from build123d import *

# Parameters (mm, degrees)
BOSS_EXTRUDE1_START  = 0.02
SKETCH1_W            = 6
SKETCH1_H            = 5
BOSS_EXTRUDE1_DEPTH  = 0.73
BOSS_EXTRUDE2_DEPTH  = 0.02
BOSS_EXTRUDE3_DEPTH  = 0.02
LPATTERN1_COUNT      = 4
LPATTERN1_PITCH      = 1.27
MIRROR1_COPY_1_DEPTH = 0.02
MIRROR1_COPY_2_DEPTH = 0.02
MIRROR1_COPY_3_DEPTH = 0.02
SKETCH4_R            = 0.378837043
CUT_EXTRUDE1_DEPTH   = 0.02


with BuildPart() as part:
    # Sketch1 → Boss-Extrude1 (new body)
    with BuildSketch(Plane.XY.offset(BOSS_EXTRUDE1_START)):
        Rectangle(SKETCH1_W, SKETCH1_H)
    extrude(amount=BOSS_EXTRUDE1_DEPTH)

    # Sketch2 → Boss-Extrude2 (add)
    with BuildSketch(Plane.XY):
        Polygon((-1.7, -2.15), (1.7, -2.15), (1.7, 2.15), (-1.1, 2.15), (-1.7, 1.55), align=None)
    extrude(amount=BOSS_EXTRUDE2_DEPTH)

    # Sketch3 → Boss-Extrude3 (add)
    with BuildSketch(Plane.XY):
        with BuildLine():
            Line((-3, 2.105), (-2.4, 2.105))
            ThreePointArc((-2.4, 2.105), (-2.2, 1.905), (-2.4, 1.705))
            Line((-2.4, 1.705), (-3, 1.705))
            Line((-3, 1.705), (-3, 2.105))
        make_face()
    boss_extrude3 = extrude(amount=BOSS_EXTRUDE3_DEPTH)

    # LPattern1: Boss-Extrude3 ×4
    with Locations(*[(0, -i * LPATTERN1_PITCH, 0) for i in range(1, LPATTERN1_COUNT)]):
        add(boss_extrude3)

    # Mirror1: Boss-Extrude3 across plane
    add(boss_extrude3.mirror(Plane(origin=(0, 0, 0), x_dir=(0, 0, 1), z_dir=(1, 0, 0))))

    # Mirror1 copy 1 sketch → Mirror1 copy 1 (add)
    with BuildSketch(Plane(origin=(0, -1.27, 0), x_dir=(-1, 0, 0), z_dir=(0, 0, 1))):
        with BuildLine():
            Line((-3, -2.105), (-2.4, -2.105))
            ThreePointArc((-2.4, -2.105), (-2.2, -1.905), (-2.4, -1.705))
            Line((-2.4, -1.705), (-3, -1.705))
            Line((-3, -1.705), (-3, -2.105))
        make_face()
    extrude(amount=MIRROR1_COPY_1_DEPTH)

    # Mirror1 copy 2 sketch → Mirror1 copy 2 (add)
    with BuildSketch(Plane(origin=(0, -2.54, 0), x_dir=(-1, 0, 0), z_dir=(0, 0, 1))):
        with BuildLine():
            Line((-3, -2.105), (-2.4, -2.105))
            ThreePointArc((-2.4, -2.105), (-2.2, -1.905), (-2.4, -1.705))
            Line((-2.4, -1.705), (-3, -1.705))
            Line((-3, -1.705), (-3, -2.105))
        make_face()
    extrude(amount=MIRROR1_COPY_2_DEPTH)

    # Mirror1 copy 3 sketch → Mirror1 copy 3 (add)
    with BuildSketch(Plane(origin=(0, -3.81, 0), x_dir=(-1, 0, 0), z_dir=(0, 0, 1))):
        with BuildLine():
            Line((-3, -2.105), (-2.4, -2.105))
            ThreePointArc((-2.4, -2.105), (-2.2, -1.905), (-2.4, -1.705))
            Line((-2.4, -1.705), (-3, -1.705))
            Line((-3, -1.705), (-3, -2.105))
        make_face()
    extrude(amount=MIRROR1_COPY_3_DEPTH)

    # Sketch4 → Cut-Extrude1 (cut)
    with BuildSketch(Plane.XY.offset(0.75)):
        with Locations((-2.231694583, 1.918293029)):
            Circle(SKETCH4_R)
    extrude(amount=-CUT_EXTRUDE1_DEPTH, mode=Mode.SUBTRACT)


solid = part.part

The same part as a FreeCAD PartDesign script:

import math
import FreeCAD as App
import Part
import Sketcher
from FreeCAD import Vector
Q = App.Units.Quantity

doc = App.newDocument("Part")
params = doc.addObject("Spreadsheet::Sheet", "Params")
for row, (alias, value) in enumerate([
    ("sketch1_width", "6 mm"),
    ("sketch1_height", "5 mm"),
    ("pad1_length", "0.73 mm"),
    ("sketch2_width", "3.4 mm"),
    ("sketch2_width2", "2.8 mm"),
    ("sketch2_height", "4.3 mm"),
    ("pad2_length", "0.02 mm"),
    ("sketch3_radius", "0.2 mm"),
    ("sketch3_width", "0.6 mm"),
    ("pad3_length", "0.02 mm"),
    ("linearpattern_pitch", "1.27 mm"),
    ("sketch4_radius", "0.2 mm"),
    ("sketch4_width", "0.6 mm"),
    ("pad4_length", "0.02 mm"),
    ("sketch5_radius", "0.2 mm"),
    ("sketch5_width", "0.6 mm"),
    ("pad5_length", "0.02 mm"),
    ("sketch6_radius", "0.2 mm"),
    ("sketch6_width", "0.6 mm"),
    ("pad6_length", "0.02 mm"),
    ("pocket1_length", "0.02 mm"),
], start=1):
    params.set(f"A{row}", alias)
    params.set(f"B{row}", "=" + value)
    params.setAlias(f"B{row}", alias)

body = doc.addObject("PartDesign::Body", "Body")

# Sketch on XY plane
sketch1 = body.newObject("Sketcher::SketchObject", "Sketch")
sketch1.AttachmentSupport = (doc.getObject("XY_Plane"), [""])
sketch1.MapMode = "FlatFace"
sketch1.AttachmentOffset = App.Placement(Vector(0, 0, 0.02), App.Rotation())
sketch1.addGeometry([
    Part.LineSegment(Vector(-3, 2, 0), Vector(-3, -2, 0)),
    Part.LineSegment(Vector(-3, -2, 0), Vector(3, -2, 0)),
    Part.LineSegment(Vector(3, -2, 0), Vector(3, 2, 0)),
    Part.LineSegment(Vector(3, 2, 0), Vector(-3, 2, 0)),
], False)
sketch1.addConstraint([
    Sketcher.Constraint("Coincident", 0, 2, 1, 1),
    Sketcher.Constraint("Coincident", 1, 2, 2, 1),
    Sketcher.Constraint("Coincident", 2, 2, 3, 1),
    Sketcher.Constraint("Coincident", 3, 2, 0, 1),
    Sketcher.Constraint("Vertical", 0),
    Sketcher.Constraint("Horizontal", 1),
    Sketcher.Constraint("Vertical", 2),
    Sketcher.Constraint("Horizontal", 3),
    Sketcher.Constraint("Symmetric", 0, 2, 2, 2, -1, 1),
    Sketcher.Constraint("DistanceX", 1, 1, 1, 2, Q("6 mm")),
    Sketcher.Constraint("DistanceY", 0, 2, 0, 1, Q("5 mm")),
])
sketch1.setExpression("Constraints[9]", "Params.sketch1_width")
sketch1.setExpression("Constraints[10]", "Params.sketch1_height")
pad1 = body.newObject("PartDesign::Pad", "Pad")
pad1.Profile = sketch1
pad1.setExpression("Length", "Params.pad1_length")

# Sketch on XY plane
sketch2 = body.newObject("Sketcher::SketchObject", "Sketch001")
sketch2.AttachmentSupport = (doc.getObject("XY_Plane"), [""])
sketch2.MapMode = "FlatFace"
sketch2.addGeometry([
    Part.LineSegment(Vector(-1.7, -2.1, 0), Vector(1.7, -2.1, 0)),  # 0
    Part.LineSegment(Vector(1.7, -2.1, 0), Vector(1.7, 2.1, 0)),  # 1
    Part.LineSegment(Vector(1.7, 2.1, 0), Vector(-1.1, 2.1, 0)),  # 2
    Part.LineSegment(Vector(-1.1, 2.1, 0), Vector(-1.7, 1.6, 0)),  # 3
    Part.LineSegment(Vector(-1.7, 1.6, 0), Vector(-1.7, -2.1, 0)),  # 4
], False)
sketch2.addConstraint([
    Sketcher.Constraint("Coincident", 0, 2, 1, 1),
    Sketcher.Constraint("Coincident", 1, 2, 2, 1),
    Sketcher.Constraint("Coincident", 2, 2, 3, 1),
    Sketcher.Constraint("Coincident", 3, 2, 4, 1),
    Sketcher.Constraint("Coincident", 4, 2, 0, 1),
    Sketcher.Constraint("Horizontal", 0),
    Sketcher.Constraint("Vertical", 1),
    Sketcher.Constraint("Horizontal", 2),
    Sketcher.Constraint("Vertical", 4),
    Sketcher.Constraint("Symmetric", 1, 2, 4, 2, -1, 1),
    Sketcher.Constraint("Angle", 3, Q("-135 deg")),
    Sketcher.Constraint("DistanceX", 0, 1, 0, 2, Q("3.4 mm")),
    Sketcher.Constraint("DistanceX", 2, 2, 2, 1, Q("2.8 mm")),
    Sketcher.Constraint("DistanceY", 1, 1, 1, 2, Q("4.3 mm")),
])
sketch2.setExpression("Constraints[11]", "Params.sketch2_width")
sketch2.setExpression("Constraints[12]", "Params.sketch2_width2")
sketch2.setExpression("Constraints[13]", "Params.sketch2_height")
pad2 = body.newObject("PartDesign::Pad", "Pad001")
pad2.Profile = sketch2
pad2.setExpression("Length", "Params.pad2_length")

# Sketch on XY plane
sketch3 = body.newObject("Sketcher::SketchObject", "Sketch002")
sketch3.AttachmentSupport = (doc.getObject("XY_Plane"), [""])
sketch3.MapMode = "FlatFace"
sketch3.addGeometry([
    Part.LineSegment(Vector(-2.4, 2.1, 0), Vector(-3, 2.1, 0)),
    Part.LineSegment(Vector(-3, 2.1, 0), Vector(-3, 1.71, 0)),
    Part.LineSegment(Vector(-3, 1.71, 0), Vector(-2.4, 1.71, 0)),
    Part.ArcOfCircle(Part.Circle(Vector(-2.4, 1.91, 0), Vector(0, 0, 1), 0.2), math.radians(-90), math.radians(90)),
], False)
sketch3.addConstraint([
    Sketcher.Constraint("Coincident", 0, 2, 1, 1),
    Sketcher.Constraint("Coincident", 1, 2, 2, 1),
    Sketcher.Constraint("Tangent", 2, 2, 3, 1),
    Sketcher.Constraint("Tangent", 3, 2, 0, 1),
    Sketcher.Constraint("Horizontal", 0),
    Sketcher.Constraint("Vertical", 1),
    Sketcher.Constraint("Horizontal", 2),
    Sketcher.Constraint("Radius", 3, Q("0.2 mm")),
    Sketcher.Constraint("DistanceX", 0, 2, 0, 1, Q("0.6 mm")),
    Sketcher.Constraint("DistanceX", 0, 2, -1, 1, Q("3 mm")),
    Sketcher.Constraint("DistanceY", -1, 1, 3, 3, Q("1.905 mm")),
])
sketch3.setExpression("Constraints[7]", "Params.sketch3_radius")
sketch3.setExpression("Constraints[8]", "Params.sketch3_width")
pad3 = body.newObject("PartDesign::Pad", "Pad002")
pad3.Profile = sketch3
pad3.setExpression("Length", "Params.pad3_length")
doc.recompute()

linearpattern = body.newObject("PartDesign::LinearPattern", "LinearPattern")
linearpattern.Originals = [pad3]
linearpattern.Direction = (doc.getObject("Y_Axis"), [""])
linearpattern.Mode = "offset"
linearpattern.setExpression("Offset", "Params.linearpattern_pitch")
linearpattern.Occurrences = 4
linearpattern.Reversed = True
body.Tip = linearpattern
doc.recompute()

mirrored = body.newObject("PartDesign::Mirrored", "Mirrored")
mirrored.Originals = [pad3]
mirrored.MirrorPlane = (doc.getObject("YZ_Plane"), [""])
body.Tip = mirrored

# Sketch on XY plane
sketch4 = body.newObject("Sketcher::SketchObject", "Sketch003")
sketch4.AttachmentSupport = (doc.getObject("XY_Plane"), [""])
sketch4.MapMode = "FlatFace"
sketch4.addGeometry([
    Part.LineSegment(Vector(3, 0.83, 0), Vector(2.4, 0.83, 0)),
    Part.ArcOfCircle(Part.Circle(Vector(2.4, 0.64, 0), Vector(0, 0, 1), 0.2), math.radians(90), math.radians(270)),
    Part.LineSegment(Vector(2.4, 0.43, 0), Vector(3, 0.43, 0)),
    Part.LineSegment(Vector(3, 0.43, 0), Vector(3, 0.83, 0)),
], False)
sketch4.addConstraint([
    Sketcher.Constraint("Tangent", 0, 2, 1, 1),
    Sketcher.Constraint("Tangent", 1, 2, 2, 1),
    Sketcher.Constraint("Coincident", 2, 2, 3, 1),
    Sketcher.Constraint("Coincident", 3, 2, 0, 1),
    Sketcher.Constraint("Horizontal", 0),
    Sketcher.Constraint("Horizontal", 2),
    Sketcher.Constraint("Vertical", 3),
    Sketcher.Constraint("Radius", 1, Q("0.2 mm")),
    Sketcher.Constraint("DistanceX", 0, 2, 0, 1, Q("0.6 mm")),
    Sketcher.Constraint("DistanceX", -1, 1, 2, 2, Q("3 mm")),
    Sketcher.Constraint("DistanceY", -1, 1, 1, 3, Q("0.635 mm")),
])
sketch4.setExpression("Constraints[7]", "Params.sketch4_radius")
sketch4.setExpression("Constraints[8]", "Params.sketch4_width")
pad4 = body.newObject("PartDesign::Pad", "Pad003")
pad4.Profile = sketch4
pad4.setExpression("Length", "Params.pad4_length")

# Sketch on XY plane
sketch5 = body.newObject("Sketcher::SketchObject", "Sketch004")
sketch5.AttachmentSupport = (doc.getObject("XY_Plane"), [""])
sketch5.MapMode = "FlatFace"
sketch5.addGeometry([
    Part.LineSegment(Vector(3, -0.43, 0), Vector(2.4, -0.43, 0)),
    Part.ArcOfCircle(Part.Circle(Vector(2.4, -0.64, 0), Vector(0, 0, 1), 0.2), math.radians(90), math.radians(270)),
    Part.LineSegment(Vector(2.4, -0.83, 0), Vector(3, -0.83, 0)),
    Part.LineSegment(Vector(3, -0.83, 0), Vector(3, -0.43, 0)),
], False)
sketch5.addConstraint([
    Sketcher.Constraint("Tangent", 0, 2, 1, 1),
    Sketcher.Constraint("Tangent", 1, 2, 2, 1),
    Sketcher.Constraint("Coincident", 2, 2, 3, 1),
    Sketcher.Constraint("Coincident", 3, 2, 0, 1),
    Sketcher.Constraint("Horizontal", 0),
    Sketcher.Constraint("Horizontal", 2),
    Sketcher.Constraint("Vertical", 3),
    Sketcher.Constraint("Radius", 1, Q("0.2 mm")),
    Sketcher.Constraint("DistanceX", 0, 2, 0, 1, Q("0.6 mm")),
    Sketcher.Constraint("DistanceX", -1, 1, 2, 2, Q("3 mm")),
    Sketcher.Constraint("DistanceY", 1, 3, -1, 1, Q("0.635 mm")),
])
sketch5.setExpression("Constraints[7]", "Params.sketch5_radius")
sketch5.setExpression("Constraints[8]", "Params.sketch5_width")
pad5 = body.newObject("PartDesign::Pad", "Pad004")
pad5.Profile = sketch5
pad5.setExpression("Length", "Params.pad5_length")

# Sketch on XY plane
sketch6 = body.newObject("Sketcher::SketchObject", "Sketch005")
sketch6.AttachmentSupport = (doc.getObject("XY_Plane"), [""])
sketch6.MapMode = "FlatFace"
sketch6.addGeometry([
    Part.LineSegment(Vector(3, -1.71, 0), Vector(2.4, -1.71, 0)),
    Part.ArcOfCircle(Part.Circle(Vector(2.4, -1.91, 0), Vector(0, 0, 1), 0.2), math.radians(90), math.radians(270)),
    Part.LineSegment(Vector(2.4, -2.1, 0), Vector(3, -2.1, 0)),
    Part.LineSegment(Vector(3, -2.1, 0), Vector(3, -1.71, 0)),
], False)
sketch6.addConstraint([
    Sketcher.Constraint("Tangent", 0, 2, 1, 1),
    Sketcher.Constraint("Tangent", 1, 2, 2, 1),
    Sketcher.Constraint("Coincident", 2, 2, 3, 1),
    Sketcher.Constraint("Coincident", 3, 2, 0, 1),
    Sketcher.Constraint("Horizontal", 0),
    Sketcher.Constraint("Horizontal", 2),
    Sketcher.Constraint("Vertical", 3),
    Sketcher.Constraint("Radius", 1, Q("0.2 mm")),
    Sketcher.Constraint("DistanceX", 0, 2, 0, 1, Q("0.6 mm")),
    Sketcher.Constraint("DistanceX", -1, 1, 2, 2, Q("3 mm")),
    Sketcher.Constraint("DistanceY", 1, 3, -1, 1, Q("1.905 mm")),
])
sketch6.setExpression("Constraints[7]", "Params.sketch6_radius")
sketch6.setExpression("Constraints[8]", "Params.sketch6_width")
pad6 = body.newObject("PartDesign::Pad", "Pad005")
pad6.Profile = sketch6
pad6.setExpression("Length", "Params.pad6_length")

# Sketch on XY plane
sketch7 = body.newObject("Sketcher::SketchObject", "Sketch006")
sketch7.AttachmentSupport = (doc.getObject("XY_Plane"), [""])
sketch7.MapMode = "FlatFace"
sketch7.AttachmentOffset = App.Placement(Vector(0, 0, 0.75), App.Rotation())
sketch7.addGeometry(Part.Circle(Vector(-2.23, 1.92, 0), Vector(0, 0, 1), 0.38), False)
sketch7.addConstraint([
    Sketcher.Constraint("Diameter", 0, Q("0.757674 mm")),
    Sketcher.Constraint("DistanceX", 0, 3, -1, 1, Q("2.231695 mm")),
    Sketcher.Constraint("DistanceY", -1, 1, 0, 3, Q("1.918293 mm")),
])
pocket1 = body.newObject("PartDesign::Pocket", "Pocket")
pocket1.Profile = sketch7
pocket1.setExpression("Length", "Params.pocket1_length")

doc.recompute()
